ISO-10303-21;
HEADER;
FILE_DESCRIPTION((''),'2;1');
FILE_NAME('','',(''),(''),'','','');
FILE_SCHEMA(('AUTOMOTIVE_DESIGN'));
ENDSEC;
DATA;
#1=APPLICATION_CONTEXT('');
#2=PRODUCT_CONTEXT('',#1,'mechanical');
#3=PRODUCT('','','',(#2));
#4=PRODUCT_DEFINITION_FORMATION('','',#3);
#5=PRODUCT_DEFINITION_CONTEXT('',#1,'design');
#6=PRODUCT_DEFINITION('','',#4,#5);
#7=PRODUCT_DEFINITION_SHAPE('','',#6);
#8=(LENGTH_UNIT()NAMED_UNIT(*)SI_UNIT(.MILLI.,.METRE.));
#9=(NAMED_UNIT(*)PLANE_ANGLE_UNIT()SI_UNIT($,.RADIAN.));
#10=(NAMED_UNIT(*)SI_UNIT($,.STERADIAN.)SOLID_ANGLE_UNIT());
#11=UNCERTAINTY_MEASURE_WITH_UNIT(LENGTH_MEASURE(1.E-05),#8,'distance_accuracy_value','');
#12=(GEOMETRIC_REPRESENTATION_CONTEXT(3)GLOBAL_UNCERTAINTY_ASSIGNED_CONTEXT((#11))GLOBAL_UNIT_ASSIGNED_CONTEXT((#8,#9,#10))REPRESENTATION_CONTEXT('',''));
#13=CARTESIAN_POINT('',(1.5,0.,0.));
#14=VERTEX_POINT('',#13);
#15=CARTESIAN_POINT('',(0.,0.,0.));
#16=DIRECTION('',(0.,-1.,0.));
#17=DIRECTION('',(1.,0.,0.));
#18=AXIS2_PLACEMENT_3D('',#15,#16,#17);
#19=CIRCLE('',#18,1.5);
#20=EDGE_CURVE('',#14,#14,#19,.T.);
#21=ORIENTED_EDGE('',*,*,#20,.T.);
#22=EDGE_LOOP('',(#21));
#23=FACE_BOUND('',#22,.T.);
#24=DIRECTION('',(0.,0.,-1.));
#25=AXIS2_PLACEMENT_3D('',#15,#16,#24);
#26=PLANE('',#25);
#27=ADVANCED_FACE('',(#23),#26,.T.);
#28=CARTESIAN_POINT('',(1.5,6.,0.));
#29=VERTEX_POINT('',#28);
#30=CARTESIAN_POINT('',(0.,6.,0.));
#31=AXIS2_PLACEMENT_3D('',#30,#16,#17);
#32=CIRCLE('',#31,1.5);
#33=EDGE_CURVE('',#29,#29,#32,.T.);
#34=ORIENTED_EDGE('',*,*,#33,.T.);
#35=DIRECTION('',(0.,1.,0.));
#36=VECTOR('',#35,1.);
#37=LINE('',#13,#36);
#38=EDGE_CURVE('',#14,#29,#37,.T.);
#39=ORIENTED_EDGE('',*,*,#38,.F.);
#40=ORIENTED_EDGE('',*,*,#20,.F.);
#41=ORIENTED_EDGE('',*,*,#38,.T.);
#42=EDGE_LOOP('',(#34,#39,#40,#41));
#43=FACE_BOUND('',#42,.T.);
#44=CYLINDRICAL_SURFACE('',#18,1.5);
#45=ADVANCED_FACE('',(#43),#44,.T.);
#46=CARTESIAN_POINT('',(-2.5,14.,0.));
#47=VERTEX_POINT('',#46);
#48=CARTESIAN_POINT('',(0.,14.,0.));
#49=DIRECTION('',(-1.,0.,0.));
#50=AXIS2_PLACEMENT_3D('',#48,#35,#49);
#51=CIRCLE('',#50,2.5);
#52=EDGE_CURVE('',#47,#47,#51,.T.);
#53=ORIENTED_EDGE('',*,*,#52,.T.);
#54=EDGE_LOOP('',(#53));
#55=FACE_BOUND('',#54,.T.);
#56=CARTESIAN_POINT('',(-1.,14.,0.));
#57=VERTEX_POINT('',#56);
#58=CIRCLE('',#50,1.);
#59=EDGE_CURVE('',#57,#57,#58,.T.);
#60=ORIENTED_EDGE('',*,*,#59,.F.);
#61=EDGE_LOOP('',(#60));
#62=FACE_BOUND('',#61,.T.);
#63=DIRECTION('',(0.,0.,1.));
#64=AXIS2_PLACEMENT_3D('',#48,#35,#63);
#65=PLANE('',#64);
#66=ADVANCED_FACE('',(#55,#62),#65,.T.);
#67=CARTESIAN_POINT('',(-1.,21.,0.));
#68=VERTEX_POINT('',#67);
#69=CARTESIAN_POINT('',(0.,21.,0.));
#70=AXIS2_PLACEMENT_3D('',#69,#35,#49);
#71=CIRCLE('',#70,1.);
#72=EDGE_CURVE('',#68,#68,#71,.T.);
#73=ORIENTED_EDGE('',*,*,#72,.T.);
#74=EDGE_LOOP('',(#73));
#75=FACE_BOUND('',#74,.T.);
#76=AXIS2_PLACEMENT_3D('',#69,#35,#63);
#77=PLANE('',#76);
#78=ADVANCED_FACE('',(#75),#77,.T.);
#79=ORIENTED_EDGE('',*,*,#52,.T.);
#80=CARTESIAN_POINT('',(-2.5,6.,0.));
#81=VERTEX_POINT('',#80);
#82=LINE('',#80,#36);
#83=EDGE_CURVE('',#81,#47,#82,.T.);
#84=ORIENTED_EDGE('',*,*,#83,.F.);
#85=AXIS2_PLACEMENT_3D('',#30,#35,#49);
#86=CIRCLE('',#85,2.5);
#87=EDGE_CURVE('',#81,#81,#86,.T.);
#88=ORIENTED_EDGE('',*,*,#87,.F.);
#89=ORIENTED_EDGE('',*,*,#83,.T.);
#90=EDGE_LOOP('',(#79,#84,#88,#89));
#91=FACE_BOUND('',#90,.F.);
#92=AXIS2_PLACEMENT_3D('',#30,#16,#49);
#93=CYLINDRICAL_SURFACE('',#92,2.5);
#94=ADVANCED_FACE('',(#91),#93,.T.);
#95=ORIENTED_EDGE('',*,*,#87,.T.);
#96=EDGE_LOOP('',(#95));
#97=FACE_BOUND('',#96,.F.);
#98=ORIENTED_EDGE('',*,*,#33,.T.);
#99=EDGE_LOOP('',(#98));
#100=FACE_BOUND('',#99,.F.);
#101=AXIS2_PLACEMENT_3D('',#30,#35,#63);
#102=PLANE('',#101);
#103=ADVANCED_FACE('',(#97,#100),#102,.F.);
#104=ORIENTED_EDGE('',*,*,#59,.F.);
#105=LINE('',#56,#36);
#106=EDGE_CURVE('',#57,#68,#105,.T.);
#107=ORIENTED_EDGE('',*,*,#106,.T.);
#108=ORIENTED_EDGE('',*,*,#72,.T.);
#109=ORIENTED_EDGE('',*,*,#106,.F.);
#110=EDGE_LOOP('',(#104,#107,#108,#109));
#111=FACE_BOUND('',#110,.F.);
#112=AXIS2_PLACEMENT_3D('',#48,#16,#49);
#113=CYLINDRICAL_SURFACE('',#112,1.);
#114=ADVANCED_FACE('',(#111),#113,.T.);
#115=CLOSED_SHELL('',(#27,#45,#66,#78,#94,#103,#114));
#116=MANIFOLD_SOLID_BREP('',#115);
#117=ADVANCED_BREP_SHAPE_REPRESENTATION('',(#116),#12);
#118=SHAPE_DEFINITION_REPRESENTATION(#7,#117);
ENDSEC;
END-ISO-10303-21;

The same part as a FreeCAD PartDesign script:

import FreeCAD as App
import Part
import Sketcher

V = App.Vector
Q = App.Units.Quantity

doc = App.newDocument("Part")
body = doc.addObject("PartDesign::Body", "Body")

# Sketch on XZ plane
sketch1 = body.newObject("Sketcher::SketchObject", "Sketch")
sketch1.AttachmentSupport = (doc.getObject("XZ_Plane"), [""])
sketch1.MapMode = "FlatFace"
sketch1.addGeometry(Part.Circle(V(0, 0, 0), V(0, 0, 1), 1.5), False)
sketch1.addConstraint(Sketcher.Constraint("Coincident", 0, 3, -1, 1))
sketch1.addConstraint(Sketcher.Constraint("Diameter", 0, Q("3 mm")))
pad1 = body.newObject("PartDesign::Pad", "Pad")
pad1.Profile = sketch1
pad1.Length = 6
pad1.Reversed = True

# Sketch on XZ plane
sketch2 = body.newObject("Sketcher::SketchObject", "Sketch001")
sketch2.AttachmentSupport = (doc.getObject("XZ_Plane"), [""])
sketch2.MapMode = "FlatFace"
sketch2.AttachmentOffset = App.Placement(V(0, 0, -6), App.Rotation())
sketch2.addGeometry(Part.Circle(V(0, 0, 0), V(0, 0, 1), 2.5), False)
sketch2.addConstraint(Sketcher.Constraint("Coincident", 0, 3, -1, 1))
sketch2.addConstraint(Sketcher.Constraint("Diameter", 0, Q("5 mm")))
pad2 = body.newObject("PartDesign::Pad", "Pad001")
pad2.Profile = sketch2
pad2.Length = 8
pad2.Reversed = True

# Sketch on XZ plane
sketch3 = body.newObject("Sketcher::SketchObject", "Sketch002")
sketch3.AttachmentSupport = (doc.getObject("XZ_Plane"), [""])
sketch3.MapMode = "FlatFace"
sketch3.AttachmentOffset = App.Placement(V(0, 0, -14), App.Rotation())
sketch3.addGeometry(Part.Circle(V(0, 0, 0), V(0, 0, 1), 1), False)
sketch3.addConstraint(Sketcher.Constraint("Coincident", 0, 3, -1, 1))
sketch3.addConstraint(Sketcher.Constraint("Diameter", 0, Q("2 mm")))
pad3 = body.newObject("PartDesign::Pad", "Pad002")
pad3.Profile = sketch3
pad3.Length = 7
pad3.Reversed = True

doc.recompute()
